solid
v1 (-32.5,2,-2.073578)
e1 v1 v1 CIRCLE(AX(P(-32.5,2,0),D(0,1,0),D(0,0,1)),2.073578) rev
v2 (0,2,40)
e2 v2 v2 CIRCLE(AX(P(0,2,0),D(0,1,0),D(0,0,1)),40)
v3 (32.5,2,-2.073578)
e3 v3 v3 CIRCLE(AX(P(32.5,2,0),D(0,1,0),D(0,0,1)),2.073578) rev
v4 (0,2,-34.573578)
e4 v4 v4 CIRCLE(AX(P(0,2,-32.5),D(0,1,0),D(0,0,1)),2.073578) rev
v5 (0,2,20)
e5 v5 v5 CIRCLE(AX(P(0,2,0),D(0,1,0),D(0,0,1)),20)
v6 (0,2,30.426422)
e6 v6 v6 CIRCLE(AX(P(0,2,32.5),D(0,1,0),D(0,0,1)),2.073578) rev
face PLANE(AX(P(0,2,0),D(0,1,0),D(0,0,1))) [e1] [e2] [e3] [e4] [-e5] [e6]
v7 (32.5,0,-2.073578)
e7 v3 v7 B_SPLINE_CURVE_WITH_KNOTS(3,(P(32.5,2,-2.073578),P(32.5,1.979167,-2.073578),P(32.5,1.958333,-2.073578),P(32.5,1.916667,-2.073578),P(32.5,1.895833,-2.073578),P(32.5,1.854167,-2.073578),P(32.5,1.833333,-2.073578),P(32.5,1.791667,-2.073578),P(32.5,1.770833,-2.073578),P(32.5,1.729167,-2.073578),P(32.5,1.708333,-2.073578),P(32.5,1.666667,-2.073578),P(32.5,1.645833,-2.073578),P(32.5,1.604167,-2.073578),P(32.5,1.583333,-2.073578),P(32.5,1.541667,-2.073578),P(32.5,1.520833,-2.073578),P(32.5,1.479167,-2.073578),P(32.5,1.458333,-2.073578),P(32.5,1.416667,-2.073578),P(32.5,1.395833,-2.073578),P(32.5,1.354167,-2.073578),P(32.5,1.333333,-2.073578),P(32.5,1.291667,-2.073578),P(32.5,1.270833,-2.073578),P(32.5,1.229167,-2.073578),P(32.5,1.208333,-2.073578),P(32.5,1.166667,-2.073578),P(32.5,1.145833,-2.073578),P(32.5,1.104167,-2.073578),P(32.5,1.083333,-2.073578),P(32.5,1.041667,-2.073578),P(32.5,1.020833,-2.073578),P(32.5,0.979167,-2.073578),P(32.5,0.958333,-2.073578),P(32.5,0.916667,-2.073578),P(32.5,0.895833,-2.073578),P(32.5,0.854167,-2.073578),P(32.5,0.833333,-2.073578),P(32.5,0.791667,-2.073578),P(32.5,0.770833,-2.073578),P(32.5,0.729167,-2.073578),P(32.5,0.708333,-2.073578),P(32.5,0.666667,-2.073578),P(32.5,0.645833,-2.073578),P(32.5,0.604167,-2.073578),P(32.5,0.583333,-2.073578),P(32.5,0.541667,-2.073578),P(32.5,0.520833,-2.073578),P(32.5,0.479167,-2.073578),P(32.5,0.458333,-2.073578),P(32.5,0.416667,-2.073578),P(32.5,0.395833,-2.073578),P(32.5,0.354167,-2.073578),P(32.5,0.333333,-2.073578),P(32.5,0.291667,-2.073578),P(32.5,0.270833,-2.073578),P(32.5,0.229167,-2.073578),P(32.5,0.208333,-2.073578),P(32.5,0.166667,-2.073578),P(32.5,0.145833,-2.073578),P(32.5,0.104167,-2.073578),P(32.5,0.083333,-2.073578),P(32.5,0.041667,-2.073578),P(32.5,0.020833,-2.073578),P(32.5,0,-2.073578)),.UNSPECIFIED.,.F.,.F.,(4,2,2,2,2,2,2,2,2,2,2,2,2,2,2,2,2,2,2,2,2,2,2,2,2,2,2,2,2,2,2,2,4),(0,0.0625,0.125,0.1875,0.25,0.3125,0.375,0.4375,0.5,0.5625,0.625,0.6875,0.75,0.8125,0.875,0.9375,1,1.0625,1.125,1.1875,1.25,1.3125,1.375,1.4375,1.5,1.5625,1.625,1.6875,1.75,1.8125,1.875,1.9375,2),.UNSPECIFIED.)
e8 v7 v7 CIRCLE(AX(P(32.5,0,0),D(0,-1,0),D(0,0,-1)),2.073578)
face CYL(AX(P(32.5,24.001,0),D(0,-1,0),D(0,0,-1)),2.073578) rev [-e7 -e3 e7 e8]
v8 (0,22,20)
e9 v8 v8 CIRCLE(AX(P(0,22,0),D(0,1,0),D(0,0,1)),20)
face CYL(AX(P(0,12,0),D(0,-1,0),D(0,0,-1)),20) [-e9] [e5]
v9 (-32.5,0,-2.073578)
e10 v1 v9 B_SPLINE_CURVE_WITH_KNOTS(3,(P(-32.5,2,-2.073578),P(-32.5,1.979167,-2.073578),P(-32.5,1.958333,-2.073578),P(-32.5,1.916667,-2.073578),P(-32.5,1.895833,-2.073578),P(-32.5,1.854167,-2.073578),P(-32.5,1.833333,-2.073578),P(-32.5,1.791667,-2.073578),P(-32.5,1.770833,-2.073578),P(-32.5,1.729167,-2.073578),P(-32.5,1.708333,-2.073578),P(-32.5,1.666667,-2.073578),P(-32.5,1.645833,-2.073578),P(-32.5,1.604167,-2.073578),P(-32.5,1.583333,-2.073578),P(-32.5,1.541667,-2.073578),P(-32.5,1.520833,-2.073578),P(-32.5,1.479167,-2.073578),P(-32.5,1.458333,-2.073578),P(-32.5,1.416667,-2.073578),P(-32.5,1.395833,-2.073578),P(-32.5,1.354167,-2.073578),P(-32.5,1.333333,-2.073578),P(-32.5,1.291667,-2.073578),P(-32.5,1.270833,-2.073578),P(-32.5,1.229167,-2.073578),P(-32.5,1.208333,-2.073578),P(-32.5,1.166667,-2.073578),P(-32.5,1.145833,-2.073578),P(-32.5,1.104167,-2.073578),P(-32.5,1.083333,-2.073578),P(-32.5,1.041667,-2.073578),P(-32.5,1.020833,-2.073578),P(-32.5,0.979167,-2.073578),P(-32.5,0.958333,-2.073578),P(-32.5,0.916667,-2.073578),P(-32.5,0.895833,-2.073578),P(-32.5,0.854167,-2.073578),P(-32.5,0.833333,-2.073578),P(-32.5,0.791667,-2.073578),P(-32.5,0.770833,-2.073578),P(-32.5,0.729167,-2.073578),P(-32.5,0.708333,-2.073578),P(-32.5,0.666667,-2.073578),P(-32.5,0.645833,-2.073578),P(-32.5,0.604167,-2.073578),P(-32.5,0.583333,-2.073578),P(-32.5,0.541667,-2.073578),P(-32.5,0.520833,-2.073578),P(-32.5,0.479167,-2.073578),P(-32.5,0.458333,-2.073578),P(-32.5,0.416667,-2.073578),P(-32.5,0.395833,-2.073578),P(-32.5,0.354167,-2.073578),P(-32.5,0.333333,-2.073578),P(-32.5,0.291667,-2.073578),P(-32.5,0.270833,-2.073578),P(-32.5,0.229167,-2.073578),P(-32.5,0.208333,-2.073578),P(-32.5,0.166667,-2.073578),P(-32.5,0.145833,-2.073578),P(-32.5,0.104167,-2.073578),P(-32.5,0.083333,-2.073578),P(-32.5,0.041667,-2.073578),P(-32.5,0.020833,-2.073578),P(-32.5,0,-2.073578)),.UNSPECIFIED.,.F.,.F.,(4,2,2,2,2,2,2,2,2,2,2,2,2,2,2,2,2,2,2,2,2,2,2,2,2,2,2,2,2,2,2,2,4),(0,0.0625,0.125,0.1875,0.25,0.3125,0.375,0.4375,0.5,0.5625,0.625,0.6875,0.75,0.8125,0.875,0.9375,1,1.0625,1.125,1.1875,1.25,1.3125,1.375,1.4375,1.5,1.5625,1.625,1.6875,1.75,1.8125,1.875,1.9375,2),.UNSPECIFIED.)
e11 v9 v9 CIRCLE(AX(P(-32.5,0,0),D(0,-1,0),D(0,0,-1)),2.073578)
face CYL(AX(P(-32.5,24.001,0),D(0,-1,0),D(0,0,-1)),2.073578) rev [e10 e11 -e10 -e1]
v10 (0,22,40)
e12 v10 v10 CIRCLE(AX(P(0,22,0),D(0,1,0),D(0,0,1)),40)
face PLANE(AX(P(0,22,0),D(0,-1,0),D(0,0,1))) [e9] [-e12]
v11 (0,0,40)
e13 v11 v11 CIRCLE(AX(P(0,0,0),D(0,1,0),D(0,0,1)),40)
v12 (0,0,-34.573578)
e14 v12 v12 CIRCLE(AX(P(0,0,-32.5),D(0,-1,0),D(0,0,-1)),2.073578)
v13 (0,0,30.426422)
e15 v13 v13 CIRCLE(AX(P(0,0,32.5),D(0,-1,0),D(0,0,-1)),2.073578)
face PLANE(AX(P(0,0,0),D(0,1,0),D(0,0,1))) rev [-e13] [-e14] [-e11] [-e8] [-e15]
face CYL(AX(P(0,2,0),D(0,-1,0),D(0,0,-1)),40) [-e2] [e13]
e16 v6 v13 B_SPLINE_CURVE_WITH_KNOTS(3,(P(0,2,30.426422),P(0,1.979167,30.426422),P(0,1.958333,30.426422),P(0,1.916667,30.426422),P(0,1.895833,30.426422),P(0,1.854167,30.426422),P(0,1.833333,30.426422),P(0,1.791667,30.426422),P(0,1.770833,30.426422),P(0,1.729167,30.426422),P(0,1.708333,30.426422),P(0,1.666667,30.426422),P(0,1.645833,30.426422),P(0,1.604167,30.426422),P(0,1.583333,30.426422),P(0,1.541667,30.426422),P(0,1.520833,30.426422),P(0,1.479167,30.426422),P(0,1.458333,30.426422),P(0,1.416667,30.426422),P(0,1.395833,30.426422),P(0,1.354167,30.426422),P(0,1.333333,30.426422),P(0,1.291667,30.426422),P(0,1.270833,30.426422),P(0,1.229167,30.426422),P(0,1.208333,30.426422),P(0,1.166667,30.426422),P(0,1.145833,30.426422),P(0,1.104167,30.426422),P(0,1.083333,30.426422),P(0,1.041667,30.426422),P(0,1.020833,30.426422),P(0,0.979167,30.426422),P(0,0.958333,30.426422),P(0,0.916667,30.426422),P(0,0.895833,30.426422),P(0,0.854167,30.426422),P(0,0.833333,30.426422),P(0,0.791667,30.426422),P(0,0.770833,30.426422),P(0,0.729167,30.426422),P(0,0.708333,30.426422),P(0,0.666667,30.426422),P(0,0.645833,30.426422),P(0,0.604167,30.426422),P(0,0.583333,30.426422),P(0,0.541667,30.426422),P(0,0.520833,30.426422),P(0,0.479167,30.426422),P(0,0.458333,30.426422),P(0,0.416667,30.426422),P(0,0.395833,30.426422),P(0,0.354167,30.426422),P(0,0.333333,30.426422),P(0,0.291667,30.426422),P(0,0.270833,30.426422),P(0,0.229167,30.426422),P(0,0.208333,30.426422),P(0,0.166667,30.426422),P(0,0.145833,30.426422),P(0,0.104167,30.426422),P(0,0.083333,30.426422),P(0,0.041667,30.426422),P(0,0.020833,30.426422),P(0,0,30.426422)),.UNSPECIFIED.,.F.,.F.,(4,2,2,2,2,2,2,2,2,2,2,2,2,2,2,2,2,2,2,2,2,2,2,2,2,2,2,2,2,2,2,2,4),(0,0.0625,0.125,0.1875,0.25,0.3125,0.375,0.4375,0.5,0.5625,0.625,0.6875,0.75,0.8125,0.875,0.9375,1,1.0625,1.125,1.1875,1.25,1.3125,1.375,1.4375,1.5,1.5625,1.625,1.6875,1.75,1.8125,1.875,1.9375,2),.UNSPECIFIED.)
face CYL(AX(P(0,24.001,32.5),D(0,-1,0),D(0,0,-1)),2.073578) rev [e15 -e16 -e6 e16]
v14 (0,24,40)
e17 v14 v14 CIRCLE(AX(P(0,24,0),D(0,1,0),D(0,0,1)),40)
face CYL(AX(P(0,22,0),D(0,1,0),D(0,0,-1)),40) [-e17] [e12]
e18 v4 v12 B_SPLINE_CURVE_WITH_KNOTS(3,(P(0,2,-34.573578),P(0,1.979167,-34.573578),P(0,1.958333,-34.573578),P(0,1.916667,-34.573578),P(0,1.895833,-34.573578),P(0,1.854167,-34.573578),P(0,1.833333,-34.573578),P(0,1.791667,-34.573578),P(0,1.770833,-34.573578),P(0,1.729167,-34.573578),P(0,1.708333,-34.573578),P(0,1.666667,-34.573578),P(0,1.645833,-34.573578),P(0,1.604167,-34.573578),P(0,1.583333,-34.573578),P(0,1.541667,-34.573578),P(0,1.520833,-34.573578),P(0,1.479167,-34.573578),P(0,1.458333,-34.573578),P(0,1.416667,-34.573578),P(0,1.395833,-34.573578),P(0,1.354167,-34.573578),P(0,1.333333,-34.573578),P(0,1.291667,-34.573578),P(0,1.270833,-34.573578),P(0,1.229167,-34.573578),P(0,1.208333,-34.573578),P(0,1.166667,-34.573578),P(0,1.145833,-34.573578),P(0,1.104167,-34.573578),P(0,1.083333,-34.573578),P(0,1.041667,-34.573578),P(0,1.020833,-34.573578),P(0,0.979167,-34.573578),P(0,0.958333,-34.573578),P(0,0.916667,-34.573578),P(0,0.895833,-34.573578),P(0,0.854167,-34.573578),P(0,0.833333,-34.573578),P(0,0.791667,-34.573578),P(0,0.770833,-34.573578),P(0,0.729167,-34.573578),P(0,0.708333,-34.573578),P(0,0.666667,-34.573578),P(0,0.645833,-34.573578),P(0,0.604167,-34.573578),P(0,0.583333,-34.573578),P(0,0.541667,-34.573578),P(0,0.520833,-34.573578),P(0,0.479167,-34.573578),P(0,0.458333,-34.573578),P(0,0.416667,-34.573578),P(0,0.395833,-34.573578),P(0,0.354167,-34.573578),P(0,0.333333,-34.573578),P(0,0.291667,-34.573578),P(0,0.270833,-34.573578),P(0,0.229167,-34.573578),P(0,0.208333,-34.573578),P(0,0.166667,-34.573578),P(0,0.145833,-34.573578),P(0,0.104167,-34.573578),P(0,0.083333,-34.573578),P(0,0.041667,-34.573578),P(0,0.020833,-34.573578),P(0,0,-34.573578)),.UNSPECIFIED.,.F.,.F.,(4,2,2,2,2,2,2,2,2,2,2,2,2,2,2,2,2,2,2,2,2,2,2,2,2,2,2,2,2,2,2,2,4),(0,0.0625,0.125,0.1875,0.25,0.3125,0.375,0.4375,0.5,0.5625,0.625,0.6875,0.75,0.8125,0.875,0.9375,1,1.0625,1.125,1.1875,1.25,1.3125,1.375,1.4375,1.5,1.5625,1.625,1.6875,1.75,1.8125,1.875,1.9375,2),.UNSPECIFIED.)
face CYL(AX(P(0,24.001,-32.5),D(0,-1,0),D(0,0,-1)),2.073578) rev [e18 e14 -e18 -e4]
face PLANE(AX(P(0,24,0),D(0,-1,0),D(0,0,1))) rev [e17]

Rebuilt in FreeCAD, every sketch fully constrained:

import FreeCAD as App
import Part
import Sketcher

V = App.Vector
Q = App.Units.Quantity

doc = App.newDocument("Part")
body = doc.addObject("PartDesign::Body", "Body")

# Sketch on XZ plane
sketch1 = body.newObject("Sketcher::SketchObject", "Sketch")
sketch1.AttachmentSupport = (doc.getObject("XZ_Plane"), [""])
sketch1.MapMode = "FlatFace"
sketch1.addGeometry(Part.Circle(V(0, 0, 0), V(0, 0, 1), 40), False)
sketch1.addConstraint([
    Sketcher.Constraint("Coincident", 0, 3, -1, 1),
    Sketcher.Constraint("Diameter", 0, Q("80 mm")),
])
pad1 = body.newObject("PartDesign::Pad", "Pad")
pad1.Profile = sketch1
pad1.Length = 2
pad1.Reversed = True

# Sketch on XZ plane
sketch2 = body.newObject("Sketcher::SketchObject", "Sketch001")
sketch2.AttachmentSupport = (doc.getObject("XZ_Plane"), [""])
sketch2.MapMode = "FlatFace"
sketch2.AttachmentOffset = App.Placement(V(0, 0, -2), App.Rotation())
sketch2.addGeometry(Part.Circle(V(0, 0, 0), V(0, 0, 1), 20), False)
sketch2.addConstraint([
    Sketcher.Constraint("Coincident", 0, 3, -1, 1),
    Sketcher.Constraint("Diameter", 0, Q("40 mm")),
])
pad2 = body.newObject("PartDesign::Pad", "Pad001")
pad2.Profile = sketch2
pad2.Length = 10
pad2.Reversed = True
doc.recompute()

datumplane = body.newObject("PartDesign::Plane", "DatumPlane")
datumplane.AttachmentSupport = (doc.getObject("XZ_Plane"), [""])
datumplane.MapMode = "FlatFace"
datumplane.AttachmentOffset = App.Placement(V(0, 0, -12), App.Rotation())
mirrored = body.newObject("PartDesign::Mirrored", "Mirrored")
mirrored.Originals = [pad1, pad2]
mirrored.MirrorPlane = (datumplane, [""])
body.Tip = mirrored

# Sketch on XZ plane
sketch3 = body.newObject("Sketcher::SketchObject", "Sketch002")
sketch3.AttachmentSupport = (doc.getObject("XZ_Plane"), [""])
sketch3.MapMode = "FlatFace"
sketch3.addGeometry(Part.Circle(V(0, 32.5, 0), V(0, 0, 1), 2.1), False)
sketch3.addConstraint([
    Sketcher.Constraint("PointOnObject", 0, 3, -2),
    Sketcher.Constraint("DistanceY", -1, 1, 0, 3, Q("32.5 mm")),
    Sketcher.Constraint("Diameter", 0, Q("4.147155 mm")),
])
pocket1 = body.newObject("PartDesign::Pocket", "Pocket")
pocket1.Profile = sketch3
pocket1.Type = "UpToFirst"

# Sketch on XZ plane
sketch4 = body.newObject("Sketcher::SketchObject", "Sketch003")
sketch4.AttachmentSupport = (doc.getObject("XZ_Plane"), [""])
sketch4.MapMode = "FlatFace"
sketch4.addGeometry(Part.Circle(V(32.5, 0, 0), V(0, 0, 1), 2.1), False)
sketch4.addConstraint([
    Sketcher.Constraint("PointOnObject", 0, 3, -1),
    Sketcher.Constraint("DistanceX", -1, 1, 0, 3, Q("32.5 mm")),
    Sketcher.Constraint("Diameter", 0, Q("4.147155 mm")),
])
pocket2 = body.newObject("PartDesign::Pocket", "Pocket001")
pocket2.Profile = sketch4
pocket2.Type = "UpToFirst"

# Sketch on XZ plane
sketch5 = body.newObject("Sketcher::SketchObject", "Sketch004")
sketch5.AttachmentSupport = (doc.getObject("XZ_Plane"), [""])
sketch5.MapMode = "FlatFace"
sketch5.addGeometry(Part.Circle(V(0, -32.5, 0), V(0, 0, 1), 2.1), False)
sketch5.addConstraint([
    Sketcher.Constraint("PointOnObject", 0, 3, -2),
    Sketcher.Constraint("DistanceY", 0, 3, -1, 1, Q("32.5 mm")),
    Sketcher.Constraint("Diameter", 0, Q("4.147155 mm")),
])
pocket3 = body.newObject("PartDesign::Pocket", "Pocket002")
pocket3.Profile = sketch5
pocket3.Type = "UpToFirst"

# Sketch on XZ plane
sketch6 = body.newObject("Sketcher::SketchObject", "Sketch005")
sketch6.AttachmentSupport = (doc.getObject("XZ_Plane"), [""])
sketch6.MapMode = "FlatFace"
sketch6.addGeometry(Part.Circle(V(-32.5, 0, 0), V(0, 0, 1), 2.1), False)
sketch6.addConstraint([
    Sketcher.Constraint("PointOnObject", 0, 3, -1),
    Sketcher.Constraint("DistanceX", 0, 3, -1, 1, Q("32.5 mm")),
    Sketcher.Constraint("Diameter", 0, Q("4.147155 mm")),
])
pocket4 = body.newObject("PartDesign::Pocket", "Pocket003")
pocket4.Profile = sketch6
pocket4.Type = "UpToFirst"

doc.recompute()
